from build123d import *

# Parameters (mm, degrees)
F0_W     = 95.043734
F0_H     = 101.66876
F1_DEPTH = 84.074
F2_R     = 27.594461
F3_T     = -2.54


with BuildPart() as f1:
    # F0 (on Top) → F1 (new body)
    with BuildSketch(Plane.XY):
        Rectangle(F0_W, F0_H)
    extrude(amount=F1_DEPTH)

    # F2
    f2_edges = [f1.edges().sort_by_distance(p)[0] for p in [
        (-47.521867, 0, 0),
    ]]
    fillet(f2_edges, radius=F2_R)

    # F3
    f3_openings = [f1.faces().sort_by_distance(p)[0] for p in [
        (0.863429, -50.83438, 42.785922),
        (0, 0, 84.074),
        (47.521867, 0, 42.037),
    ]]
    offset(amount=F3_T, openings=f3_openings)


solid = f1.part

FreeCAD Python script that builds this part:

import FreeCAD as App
import Part
import Sketcher
from FreeCAD import Vector
Q = App.Units.Quantity


def edges_at(feature, points):
    """Names of the edges that pass closest to the given points."""
    edges = feature.Shape.Edges
    near = lambda p: min(range(len(edges)), key=lambda i: edges[i].distToShape(Part.Vertex(*p))[0])
    return sorted({f"Edge{near(p) + 1}" for p in points})


def faces_at(feature, points):
    """Names of the faces that lie closest to the given points."""
    faces = feature.Shape.Faces
    near = lambda p: min(range(len(faces)), key=lambda i: faces[i].distToShape(Part.Vertex(*p))[0])
    return sorted({f"Face{near(p) + 1}" for p in points})


def add_polygon(sketch, points):
    """Adds a closed chain of lines whose ends are joined by coincident constraints."""
    first, n = sketch.GeometryCount, len(points)
    for a, b in zip(points, points[1:] + points[:1]):
        sketch.addGeometry(Part.LineSegment(App.Vector(*a, 0), App.Vector(*b, 0)), False)
    for i in range(n):
        sketch.addConstraint(Sketcher.Constraint("Coincident", first + i, 2, first + (i + 1) % n, 1))

doc = App.newDocument("Part")
body = doc.addObject("PartDesign::Body", "Body")

# Sketch on XY plane
sketch1 = body.newObject("Sketcher::SketchObject", "Sketch")
sketch1.AttachmentSupport = (doc.getObject("XY_Plane"), [""])
sketch1.MapMode = "FlatFace"
add_polygon(sketch1, [(-48, 51), (-48, -51), (48, -51), (48, 51)])  # lines 0-3
sketch1.addConstraint(Sketcher.Constraint("Vertical", 0))
sketch1.addConstraint(Sketcher.Constraint("Horizontal", 1))
sketch1.addConstraint(Sketcher.Constraint("Vertical", 2))
sketch1.addConstraint(Sketcher.Constraint("Horizontal", 3))
sketch1.addConstraint(Sketcher.Constraint("Symmetric", 0, 2, 2, 2, -1, 1))
sketch1.addConstraint(Sketcher.Constraint("DistanceY", 0, 2, 0, 1, 101.66876))
sketch1.addConstraint(Sketcher.Constraint("DistanceX", 1, 1, 1, 2, 95.043734))
pad1 = body.newObject("PartDesign::Pad", "Pad")
pad1.Profile = sketch1
pad1.Length = Q("3.31 in")
doc.recompute()

fillet = body.newObject("PartDesign::Fillet", "Fillet")
fillet.Base = (pad1, edges_at(pad1, [(-47.522, 0, 0)]))
fillet.Radius = 27.594461
doc.recompute()

thickness = body.newObject("PartDesign::Thickness", "Thickness")
thickness.Base = (fillet, faces_at(fillet, [(0, -50.834, 42.037), (0, 0, 84.074), (47.522, 0, 42.037)]))
thickness.Value = Q("0.1 in")
thickness.Reversed = True
thickness.Join = "Arc"

doc.recompute()
